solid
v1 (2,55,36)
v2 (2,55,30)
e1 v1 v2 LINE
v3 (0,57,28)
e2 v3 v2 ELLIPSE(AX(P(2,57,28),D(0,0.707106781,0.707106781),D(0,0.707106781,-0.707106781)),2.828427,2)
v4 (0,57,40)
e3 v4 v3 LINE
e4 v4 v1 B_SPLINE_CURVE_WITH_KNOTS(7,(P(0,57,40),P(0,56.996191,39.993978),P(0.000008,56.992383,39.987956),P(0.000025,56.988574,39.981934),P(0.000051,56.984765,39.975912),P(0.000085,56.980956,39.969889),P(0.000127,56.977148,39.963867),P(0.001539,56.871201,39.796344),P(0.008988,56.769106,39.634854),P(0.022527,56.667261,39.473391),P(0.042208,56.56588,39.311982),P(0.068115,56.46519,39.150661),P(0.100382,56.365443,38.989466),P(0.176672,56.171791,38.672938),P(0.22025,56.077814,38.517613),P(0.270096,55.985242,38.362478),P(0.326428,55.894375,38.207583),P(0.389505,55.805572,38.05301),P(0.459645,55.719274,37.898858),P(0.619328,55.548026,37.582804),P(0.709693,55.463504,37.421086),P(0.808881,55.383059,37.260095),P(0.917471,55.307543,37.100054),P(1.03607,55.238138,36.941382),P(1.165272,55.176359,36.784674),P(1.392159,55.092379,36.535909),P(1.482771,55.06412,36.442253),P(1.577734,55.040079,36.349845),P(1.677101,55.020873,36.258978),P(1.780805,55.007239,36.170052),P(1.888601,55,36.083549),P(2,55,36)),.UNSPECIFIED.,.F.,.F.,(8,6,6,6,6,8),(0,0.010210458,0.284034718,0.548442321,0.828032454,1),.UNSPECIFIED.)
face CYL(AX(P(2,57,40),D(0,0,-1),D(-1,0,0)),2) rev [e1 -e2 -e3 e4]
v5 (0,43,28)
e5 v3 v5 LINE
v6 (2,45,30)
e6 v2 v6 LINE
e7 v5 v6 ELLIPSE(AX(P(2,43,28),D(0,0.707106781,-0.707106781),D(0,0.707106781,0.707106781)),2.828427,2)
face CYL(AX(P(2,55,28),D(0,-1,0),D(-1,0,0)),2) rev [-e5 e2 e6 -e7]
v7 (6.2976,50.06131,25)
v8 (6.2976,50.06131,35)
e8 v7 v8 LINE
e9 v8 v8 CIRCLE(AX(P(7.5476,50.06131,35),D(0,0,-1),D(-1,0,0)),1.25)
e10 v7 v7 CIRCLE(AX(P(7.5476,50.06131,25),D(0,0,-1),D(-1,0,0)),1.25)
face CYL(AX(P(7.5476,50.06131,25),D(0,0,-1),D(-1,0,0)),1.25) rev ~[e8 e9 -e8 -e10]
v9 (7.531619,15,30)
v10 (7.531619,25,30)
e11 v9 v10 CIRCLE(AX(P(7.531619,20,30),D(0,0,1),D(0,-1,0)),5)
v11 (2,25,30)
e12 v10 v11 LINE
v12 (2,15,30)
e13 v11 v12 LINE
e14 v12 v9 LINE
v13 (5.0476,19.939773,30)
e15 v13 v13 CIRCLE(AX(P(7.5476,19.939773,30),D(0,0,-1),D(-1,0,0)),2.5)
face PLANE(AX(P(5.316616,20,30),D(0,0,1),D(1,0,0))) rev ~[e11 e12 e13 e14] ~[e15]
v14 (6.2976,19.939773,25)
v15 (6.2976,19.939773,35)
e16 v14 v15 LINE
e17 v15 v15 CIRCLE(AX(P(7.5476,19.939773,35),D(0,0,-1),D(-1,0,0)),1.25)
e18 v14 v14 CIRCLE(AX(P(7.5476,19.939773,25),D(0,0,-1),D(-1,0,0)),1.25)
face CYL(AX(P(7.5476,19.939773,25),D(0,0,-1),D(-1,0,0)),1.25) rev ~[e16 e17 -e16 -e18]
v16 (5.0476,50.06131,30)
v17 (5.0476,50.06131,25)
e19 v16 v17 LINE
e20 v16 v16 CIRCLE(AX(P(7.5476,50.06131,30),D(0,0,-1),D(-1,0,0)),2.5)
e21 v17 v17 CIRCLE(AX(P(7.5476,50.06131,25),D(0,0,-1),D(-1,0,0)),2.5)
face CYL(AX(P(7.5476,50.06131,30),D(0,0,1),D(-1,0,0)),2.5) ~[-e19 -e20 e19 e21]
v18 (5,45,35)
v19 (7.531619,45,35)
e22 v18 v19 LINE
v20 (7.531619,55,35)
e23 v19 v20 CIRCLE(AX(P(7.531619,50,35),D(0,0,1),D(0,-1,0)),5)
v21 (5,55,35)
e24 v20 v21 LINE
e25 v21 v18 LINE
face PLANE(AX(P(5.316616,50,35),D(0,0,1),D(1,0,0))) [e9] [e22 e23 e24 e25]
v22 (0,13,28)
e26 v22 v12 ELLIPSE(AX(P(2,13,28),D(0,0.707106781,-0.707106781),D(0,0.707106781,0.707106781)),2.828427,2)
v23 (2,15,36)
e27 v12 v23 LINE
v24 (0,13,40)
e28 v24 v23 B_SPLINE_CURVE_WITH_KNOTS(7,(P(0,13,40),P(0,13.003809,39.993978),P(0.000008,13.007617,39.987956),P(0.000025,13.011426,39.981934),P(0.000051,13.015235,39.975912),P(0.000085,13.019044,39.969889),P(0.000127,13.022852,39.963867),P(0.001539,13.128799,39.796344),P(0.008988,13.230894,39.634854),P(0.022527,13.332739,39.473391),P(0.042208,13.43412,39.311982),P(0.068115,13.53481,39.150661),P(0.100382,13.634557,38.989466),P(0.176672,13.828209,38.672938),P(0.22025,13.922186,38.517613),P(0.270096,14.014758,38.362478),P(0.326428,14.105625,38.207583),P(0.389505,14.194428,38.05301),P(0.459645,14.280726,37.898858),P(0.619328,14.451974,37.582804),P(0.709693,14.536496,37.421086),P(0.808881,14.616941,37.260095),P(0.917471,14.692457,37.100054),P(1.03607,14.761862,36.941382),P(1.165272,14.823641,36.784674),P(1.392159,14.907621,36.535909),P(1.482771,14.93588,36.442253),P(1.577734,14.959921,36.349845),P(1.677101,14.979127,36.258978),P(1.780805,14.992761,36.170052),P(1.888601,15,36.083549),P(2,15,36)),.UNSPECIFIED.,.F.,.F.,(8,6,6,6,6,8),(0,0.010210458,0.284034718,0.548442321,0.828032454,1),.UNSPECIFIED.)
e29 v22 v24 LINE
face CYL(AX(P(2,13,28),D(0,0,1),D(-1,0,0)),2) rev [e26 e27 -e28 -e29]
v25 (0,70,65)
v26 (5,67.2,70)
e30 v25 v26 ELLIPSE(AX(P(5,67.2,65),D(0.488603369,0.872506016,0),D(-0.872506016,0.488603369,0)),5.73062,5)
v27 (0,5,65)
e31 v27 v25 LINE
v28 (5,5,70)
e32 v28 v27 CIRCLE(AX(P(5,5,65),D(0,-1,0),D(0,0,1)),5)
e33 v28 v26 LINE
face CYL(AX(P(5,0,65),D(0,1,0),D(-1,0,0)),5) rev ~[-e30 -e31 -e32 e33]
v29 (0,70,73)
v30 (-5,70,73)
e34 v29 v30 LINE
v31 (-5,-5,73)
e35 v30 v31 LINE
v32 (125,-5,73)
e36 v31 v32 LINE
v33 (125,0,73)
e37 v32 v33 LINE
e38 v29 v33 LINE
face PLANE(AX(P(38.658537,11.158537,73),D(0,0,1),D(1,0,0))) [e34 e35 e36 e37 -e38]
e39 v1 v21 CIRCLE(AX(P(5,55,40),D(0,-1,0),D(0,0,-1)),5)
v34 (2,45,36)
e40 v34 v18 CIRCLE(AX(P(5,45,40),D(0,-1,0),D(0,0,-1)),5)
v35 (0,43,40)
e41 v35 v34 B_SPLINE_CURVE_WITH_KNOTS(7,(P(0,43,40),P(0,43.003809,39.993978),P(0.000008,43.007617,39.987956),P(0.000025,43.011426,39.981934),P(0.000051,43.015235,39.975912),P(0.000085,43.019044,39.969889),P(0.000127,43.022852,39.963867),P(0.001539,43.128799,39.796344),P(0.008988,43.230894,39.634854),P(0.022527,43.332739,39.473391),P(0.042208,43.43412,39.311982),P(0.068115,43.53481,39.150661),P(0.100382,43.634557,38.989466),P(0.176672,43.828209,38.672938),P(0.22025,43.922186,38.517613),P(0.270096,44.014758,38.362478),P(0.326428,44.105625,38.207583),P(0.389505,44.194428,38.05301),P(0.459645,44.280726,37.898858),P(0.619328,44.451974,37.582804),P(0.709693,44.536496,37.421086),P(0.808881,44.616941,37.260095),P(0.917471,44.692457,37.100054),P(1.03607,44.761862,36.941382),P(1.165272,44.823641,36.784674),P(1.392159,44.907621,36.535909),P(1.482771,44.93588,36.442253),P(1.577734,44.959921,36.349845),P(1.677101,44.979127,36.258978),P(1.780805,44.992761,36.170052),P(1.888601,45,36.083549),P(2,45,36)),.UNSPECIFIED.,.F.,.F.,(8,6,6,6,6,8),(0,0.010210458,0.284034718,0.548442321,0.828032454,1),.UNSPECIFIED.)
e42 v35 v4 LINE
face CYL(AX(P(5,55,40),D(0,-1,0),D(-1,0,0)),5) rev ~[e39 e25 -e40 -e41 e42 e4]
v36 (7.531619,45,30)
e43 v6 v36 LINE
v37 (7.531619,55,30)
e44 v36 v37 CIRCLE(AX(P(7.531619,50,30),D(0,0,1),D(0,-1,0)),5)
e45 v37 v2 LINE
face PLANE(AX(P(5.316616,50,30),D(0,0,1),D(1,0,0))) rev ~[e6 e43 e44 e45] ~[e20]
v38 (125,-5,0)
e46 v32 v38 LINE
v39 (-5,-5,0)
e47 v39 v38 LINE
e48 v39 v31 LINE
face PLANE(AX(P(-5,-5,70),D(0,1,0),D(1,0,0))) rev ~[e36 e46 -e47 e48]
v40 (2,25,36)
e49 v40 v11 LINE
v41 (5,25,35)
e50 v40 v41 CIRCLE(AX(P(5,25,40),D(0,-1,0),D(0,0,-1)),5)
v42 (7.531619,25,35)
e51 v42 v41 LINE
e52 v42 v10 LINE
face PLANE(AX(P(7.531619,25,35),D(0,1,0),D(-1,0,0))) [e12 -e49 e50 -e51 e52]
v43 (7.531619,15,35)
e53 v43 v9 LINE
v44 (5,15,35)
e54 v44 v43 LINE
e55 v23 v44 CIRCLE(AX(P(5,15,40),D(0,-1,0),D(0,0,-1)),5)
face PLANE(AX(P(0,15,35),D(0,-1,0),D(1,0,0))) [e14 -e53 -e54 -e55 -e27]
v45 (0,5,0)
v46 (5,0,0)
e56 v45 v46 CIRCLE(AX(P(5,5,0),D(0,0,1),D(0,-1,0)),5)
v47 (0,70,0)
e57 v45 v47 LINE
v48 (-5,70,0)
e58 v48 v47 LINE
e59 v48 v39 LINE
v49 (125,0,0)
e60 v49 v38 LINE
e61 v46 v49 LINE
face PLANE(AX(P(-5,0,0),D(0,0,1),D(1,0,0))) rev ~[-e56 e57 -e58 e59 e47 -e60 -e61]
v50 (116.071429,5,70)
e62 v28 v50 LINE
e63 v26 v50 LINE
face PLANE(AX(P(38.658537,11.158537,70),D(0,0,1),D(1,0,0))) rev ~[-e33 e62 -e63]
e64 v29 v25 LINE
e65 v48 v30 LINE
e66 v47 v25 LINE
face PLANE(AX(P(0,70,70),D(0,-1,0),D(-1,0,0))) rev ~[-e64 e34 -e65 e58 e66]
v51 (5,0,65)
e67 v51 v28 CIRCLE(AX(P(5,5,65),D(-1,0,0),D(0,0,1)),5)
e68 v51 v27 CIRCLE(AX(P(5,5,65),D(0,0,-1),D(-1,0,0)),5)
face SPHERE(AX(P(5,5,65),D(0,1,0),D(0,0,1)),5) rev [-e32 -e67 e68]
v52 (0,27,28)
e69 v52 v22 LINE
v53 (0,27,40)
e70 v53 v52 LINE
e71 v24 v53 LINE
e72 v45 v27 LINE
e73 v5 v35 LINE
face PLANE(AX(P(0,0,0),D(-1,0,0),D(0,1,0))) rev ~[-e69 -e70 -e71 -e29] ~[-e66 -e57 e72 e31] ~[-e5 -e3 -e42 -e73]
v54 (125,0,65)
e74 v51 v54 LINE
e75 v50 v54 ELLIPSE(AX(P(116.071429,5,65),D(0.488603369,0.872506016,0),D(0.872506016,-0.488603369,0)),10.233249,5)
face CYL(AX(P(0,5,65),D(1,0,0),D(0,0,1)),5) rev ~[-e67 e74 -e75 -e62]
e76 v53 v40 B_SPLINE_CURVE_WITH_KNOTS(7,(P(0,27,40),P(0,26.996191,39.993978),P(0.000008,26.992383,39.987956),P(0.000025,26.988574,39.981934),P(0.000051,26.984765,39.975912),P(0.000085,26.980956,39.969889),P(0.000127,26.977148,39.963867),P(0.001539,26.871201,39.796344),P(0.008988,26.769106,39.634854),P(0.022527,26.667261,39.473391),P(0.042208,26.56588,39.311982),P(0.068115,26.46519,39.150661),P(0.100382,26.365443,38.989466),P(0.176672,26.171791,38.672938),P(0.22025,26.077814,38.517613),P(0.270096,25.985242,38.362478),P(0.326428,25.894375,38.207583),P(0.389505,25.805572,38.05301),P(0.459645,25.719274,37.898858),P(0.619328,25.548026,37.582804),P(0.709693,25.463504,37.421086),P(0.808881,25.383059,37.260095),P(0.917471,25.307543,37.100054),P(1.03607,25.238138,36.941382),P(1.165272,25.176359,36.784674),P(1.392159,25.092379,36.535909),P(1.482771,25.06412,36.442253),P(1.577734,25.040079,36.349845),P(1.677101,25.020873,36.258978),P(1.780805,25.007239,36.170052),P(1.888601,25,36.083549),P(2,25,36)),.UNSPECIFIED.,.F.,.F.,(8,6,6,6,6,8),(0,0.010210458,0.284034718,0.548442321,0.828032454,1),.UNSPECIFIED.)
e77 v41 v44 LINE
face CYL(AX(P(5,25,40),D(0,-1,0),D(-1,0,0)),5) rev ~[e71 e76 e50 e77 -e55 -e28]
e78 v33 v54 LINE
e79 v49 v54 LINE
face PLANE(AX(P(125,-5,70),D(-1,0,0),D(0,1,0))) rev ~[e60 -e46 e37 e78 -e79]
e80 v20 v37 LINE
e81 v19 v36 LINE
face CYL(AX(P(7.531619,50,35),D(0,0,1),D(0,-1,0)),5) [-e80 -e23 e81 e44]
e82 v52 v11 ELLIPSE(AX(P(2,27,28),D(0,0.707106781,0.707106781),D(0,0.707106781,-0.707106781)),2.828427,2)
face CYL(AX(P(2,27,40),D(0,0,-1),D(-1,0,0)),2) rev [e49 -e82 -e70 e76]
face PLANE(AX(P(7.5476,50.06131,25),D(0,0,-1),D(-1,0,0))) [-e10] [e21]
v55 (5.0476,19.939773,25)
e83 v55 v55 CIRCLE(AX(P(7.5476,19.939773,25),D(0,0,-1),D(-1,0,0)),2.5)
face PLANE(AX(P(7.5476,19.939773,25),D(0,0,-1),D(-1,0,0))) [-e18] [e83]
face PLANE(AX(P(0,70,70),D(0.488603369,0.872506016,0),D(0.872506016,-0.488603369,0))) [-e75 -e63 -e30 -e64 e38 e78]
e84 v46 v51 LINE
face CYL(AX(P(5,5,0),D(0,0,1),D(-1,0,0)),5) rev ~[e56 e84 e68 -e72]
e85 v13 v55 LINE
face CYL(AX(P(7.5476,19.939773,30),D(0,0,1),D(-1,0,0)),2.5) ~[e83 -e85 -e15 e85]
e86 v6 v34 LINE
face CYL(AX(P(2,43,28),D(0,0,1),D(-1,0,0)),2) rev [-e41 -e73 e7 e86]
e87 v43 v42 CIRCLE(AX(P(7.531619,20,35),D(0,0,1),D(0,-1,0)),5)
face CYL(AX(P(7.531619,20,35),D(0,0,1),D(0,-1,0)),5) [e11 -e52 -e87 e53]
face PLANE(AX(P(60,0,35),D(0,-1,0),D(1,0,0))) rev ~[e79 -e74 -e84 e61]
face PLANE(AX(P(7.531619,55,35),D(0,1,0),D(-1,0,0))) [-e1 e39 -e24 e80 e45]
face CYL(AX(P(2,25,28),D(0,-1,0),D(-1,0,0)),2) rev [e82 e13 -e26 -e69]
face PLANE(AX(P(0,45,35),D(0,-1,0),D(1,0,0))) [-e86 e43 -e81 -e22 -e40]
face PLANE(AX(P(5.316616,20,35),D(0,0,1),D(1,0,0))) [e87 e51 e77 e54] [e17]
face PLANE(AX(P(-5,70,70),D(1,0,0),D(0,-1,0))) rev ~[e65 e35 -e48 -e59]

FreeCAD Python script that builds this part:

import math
import FreeCAD as App
import Part
import Sketcher

V = App.Vector


def edges_at(feature, points):
    """Names of the edges that pass closest to the given points."""
    edges = feature.Shape.Edges
    near = lambda p: min(range(len(edges)), key=lambda i: edges[i].distToShape(Part.Vertex(*p))[0])
    return sorted({f"Edge{near(p) + 1}" for p in points})


def add_polygon(sketch, points):
    """Adds a closed chain of lines whose ends are joined by coincident constraints."""
    first, n = sketch.GeometryCount, len(points)
    for a, b in zip(points, points[1:] + points[:1]):
        sketch.addGeometry(Part.LineSegment(App.Vector(*a, 0), App.Vector(*b, 0)), False)
    for i in range(n):
        sketch.addConstraint(Sketcher.Constraint("Coincident", first + i, 2, first + (i + 1) % n, 1))

doc = App.newDocument("Part")
body = doc.addObject("PartDesign::Body", "Body")

# Sketch on XY plane
sketch1 = body.newObject("Sketcher::SketchObject", "Sketch")
sketch1.AttachmentSupport = (doc.getObject("XY_Plane"), [""])
sketch1.MapMode = "FlatFace"
add_polygon(sketch1, [(-5, 70), (-5, 0), (0, 0), (0, 70)])  # lines 0-3
sketch1.addConstraint([
    Sketcher.Constraint("Vertical", 0),
    Sketcher.Constraint("Horizontal", 1),
    Sketcher.Constraint("Vertical", 2),
    Sketcher.Constraint("Horizontal", 3),
    Sketcher.Constraint("Coincident", 1, 2, -1, 1),
    Sketcher.Constraint("DistanceX", 1, 1, 1, 2, 5.0),
    Sketcher.Constraint("DistanceY", 0, 2, 0, 1, 70.0),
])
pad1 = body.newObject("PartDesign::Pad", "Pad")
pad1.Profile = sketch1
pad1.Length = 70

# Sketch on XY plane
sketch2 = body.newObject("Sketcher::SketchObject", "Sketch001")
sketch2.AttachmentSupport = (doc.getObject("XY_Plane"), [""])
sketch2.MapMode = "FlatFace"
sketch2.AttachmentOffset = App.Placement(V(0, 0, 35), App.Rotation())
sketch2.addGeometry([
    Part.LineSegment(V(0, 45, 0), V(8, 45, 0)),  # 0
    Part.ArcOfCircle(Part.Circle(V(8, 50, 0), V(0, 0, 1), 5), math.radians(-90), math.radians(90)),  # 1
    Part.LineSegment(V(8, 55, 0), V(0, 55, 0)),  # 2
    Part.LineSegment(V(0, 55, 0), V(0, 45, 0)),  # 3
    Part.LineSegment(V(0, 15, 0), V(8, 15, 0)),  # 4
    Part.ArcOfCircle(Part.Circle(V(8, 20, 0), V(0, 0, 1), 5), math.radians(-90), math.radians(90)),  # 5
    Part.LineSegment(V(8, 25, 0), V(0, 25, 0)),  # 6
    Part.LineSegment(V(0, 25, 0), V(0, 15, 0)),  # 7
], False)
sketch2.addConstraint([
    Sketcher.Constraint("Tangent", 0, 2, 1, 1),
    Sketcher.Constraint("Tangent", 1, 2, 2, 1),
    Sketcher.Constraint("Coincident", 2, 2, 3, 1),
    Sketcher.Constraint("Coincident", 3, 2, 0, 1),
    Sketcher.Constraint("Tangent", 4, 2, 5, 1),
    Sketcher.Constraint("Tangent", 5, 2, 6, 1),
    Sketcher.Constraint("Coincident", 6, 2, 7, 1),
    Sketcher.Constraint("Coincident", 7, 2, 4, 1),
    Sketcher.Constraint("Horizontal", 0),
    Sketcher.Constraint("Horizontal", 2),
    Sketcher.Constraint("Vertical", 3),
    Sketcher.Constraint("Horizontal", 4),
    Sketcher.Constraint("Horizontal", 6),
    Sketcher.Constraint("Vertical", 7),
    Sketcher.Constraint("Equal", 1, 5),
    Sketcher.Constraint("PointOnObject", 2, 2, -2),
    Sketcher.Constraint("PointOnObject", 6, 2, -2),
    Sketcher.Constraint("Vertical", 1, 3, 5, 3),
    Sketcher.Constraint("Radius", 1, 5.0),
    Sketcher.Constraint("DistanceY", -1, 1, 1, 3, 50.0),
    Sketcher.Constraint("DistanceY", -1, 1, 5, 3, 20.0),
    Sketcher.Constraint("DistanceX", 0, 1, 0, 2, 7.531619),
])
pad2 = body.newObject("PartDesign::Pad", "Pad001")
pad2.Profile = sketch2
pad2.Length = 5
pad2.Reversed = True

# Sketch on XY plane
sketch3 = body.newObject("Sketcher::SketchObject", "Sketch002")
sketch3.AttachmentSupport = (doc.getObject("XY_Plane"), [""])
sketch3.MapMode = "FlatFace"
sketch3.AttachmentOffset = App.Placement(V(0, 0, 30), App.Rotation())
sketch3.addGeometry([
    Part.Circle(V(7.5, 50.1, 0), V(0, 0, 1), 2.5),
    Part.Circle(V(7.5, 19.9, 0), V(0, 0, 1), 2.5),
], False)
sketch3.addConstraint([
    Sketcher.Constraint("Equal", 0, 1),
    Sketcher.Constraint("Vertical", 0, 3, 1, 3),
    Sketcher.Constraint("Diameter", 0, 5.0),
    Sketcher.Constraint("DistanceX", -1, 1, 0, 3, 7.5476),
    Sketcher.Constraint("DistanceY", -1, 1, 0, 3, 50.06131),
    Sketcher.Constraint("DistanceY", -1, 1, 1, 3, 19.939773),
])
pad3 = body.newObject("PartDesign::Pad", "Pad002")
pad3.Profile = sketch3
pad3.Length = 5
pad3.Reversed = True

# Sketch on XZ plane
sketch4 = body.newObject("Sketcher::SketchObject", "Sketch003")
sketch4.AttachmentSupport = (doc.getObject("XZ_Plane"), [""])
sketch4.MapMode = "FlatFace"
add_polygon(sketch4, [(-5, 70), (-5, 0), (125, 0), (125, 70)])  # lines 0-3
sketch4.addConstraint([
    Sketcher.Constraint("Vertical", 0),
    Sketcher.Constraint("Horizontal", 1),
    Sketcher.Constraint("Vertical", 2),
    Sketcher.Constraint("Horizontal", 3),
    Sketcher.Constraint("PointOnObject", 0, 2, -1),
    Sketcher.Constraint("DistanceX", 1, 1, 1, 2, 130.0),
    Sketcher.Constraint("DistanceY", 0, 2, 0, 1, 70.0),
    Sketcher.Constraint("DistanceX", 0, 2, -1, 1, 5.0),
])
pad4 = body.newObject("PartDesign::Pad", "Pad003")
pad4.Profile = sketch4
pad4.Length = 5

# Sketch on XY plane
sketch5 = body.newObject("Sketcher::SketchObject", "Sketch004")
sketch5.AttachmentSupport = (doc.getObject("XY_Plane"), [""])
sketch5.MapMode = "FlatFace"
sketch5.AttachmentOffset = App.Placement(V(0, 0, 25), App.Rotation())
sketch5.addGeometry([
    Part.Circle(V(7.5, 50.1, 0), V(0, 0, 1), 1.2),
    Part.Circle(V(7.5, 19.9, 0), V(0, 0, 1), 1.2),
], False)
sketch5.addConstraint([
    Sketcher.Constraint("Equal", 0, 1),
    Sketcher.Constraint("Vertical", 0, 3, 1, 3),
    Sketcher.Constraint("Diameter", 0, 2.5),
    Sketcher.Constraint("DistanceX", -1, 1, 0, 3, 7.5476),
    Sketcher.Constraint("DistanceY", -1, 1, 0, 3, 50.06131),
    Sketcher.Constraint("DistanceY", -1, 1, 1, 3, 19.939773),
])
pocket1 = body.newObject("PartDesign::Pocket", "Pocket")
pocket1.Profile = sketch5
pocket1.Type = "ThroughAll"
pocket1.Reversed = True

# Sketch on XY plane
sketch6 = body.newObject("Sketcher::SketchObject", "Sketch005")
sketch6.AttachmentSupport = (doc.getObject("XY_Plane"), [""])
sketch6.MapMode = "FlatFace"
sketch6.AttachmentOffset = App.Placement(V(0, 0, 70), App.Rotation())
add_polygon(sketch6, [(0, 70), (-5, 70), (-5, -5), (125, -5), (125, 0)])  # lines 0-4
sketch6.addConstraint([
    Sketcher.Constraint("Horizontal", 0),
    Sketcher.Constraint("Vertical", 1),
    Sketcher.Constraint("Horizontal", 2),
    Sketcher.Constraint("Vertical", 3),
    Sketcher.Constraint("PointOnObject", 3, 2, -1),
    Sketcher.Constraint("PointOnObject", 4, 2, -2),
    Sketcher.Constraint("Equal", 0, 3),
    Sketcher.Constraint("DistanceX", 0, 2, 0, 1, 5.0),
    Sketcher.Constraint("DistanceX", 2, 1, 2, 2, 130.0),
    Sketcher.Constraint("DistanceY", 1, 2, 1, 1, 75.0),
])
pad5 = body.newObject("PartDesign::Pad", "Pad004")
pad5.Profile = sketch6
pad5.Length = 3
doc.recompute()

fillet = body.newObject("PartDesign::Fillet", "Fillet")
fillet.Base = (pad5, edges_at(pad5, [(0, 35, 70), (62.5, 0, 70), (0, 0, 35)]))
fillet.Radius = 5
doc.recompute()

fillet2 = body.newObject("PartDesign::Fillet", "Fillet001")
fillet2.Base = (fillet, edges_at(fillet, [(0, 50, 35), (0, 20, 35)]))
fillet2.Radius = 5
doc.recompute()

fillet3 = body.newObject("PartDesign::Fillet", "Fillet002")
fillet3.Base = (fillet2, edges_at(fillet2, [(0, 50, 30), (0, 20, 30)]))
fillet3.Radius = 2
doc.recompute()

fillet4 = body.newObject("PartDesign::Fillet", "Fillet003")
fillet4.Base = (fillet3, edges_at(fillet3, [
    (0, 25, 34),
    (0, 15, 34),
    (0, 45, 34),
    (0, 55, 34),
]))
fillet4.Radius = 2

doc.recompute()
